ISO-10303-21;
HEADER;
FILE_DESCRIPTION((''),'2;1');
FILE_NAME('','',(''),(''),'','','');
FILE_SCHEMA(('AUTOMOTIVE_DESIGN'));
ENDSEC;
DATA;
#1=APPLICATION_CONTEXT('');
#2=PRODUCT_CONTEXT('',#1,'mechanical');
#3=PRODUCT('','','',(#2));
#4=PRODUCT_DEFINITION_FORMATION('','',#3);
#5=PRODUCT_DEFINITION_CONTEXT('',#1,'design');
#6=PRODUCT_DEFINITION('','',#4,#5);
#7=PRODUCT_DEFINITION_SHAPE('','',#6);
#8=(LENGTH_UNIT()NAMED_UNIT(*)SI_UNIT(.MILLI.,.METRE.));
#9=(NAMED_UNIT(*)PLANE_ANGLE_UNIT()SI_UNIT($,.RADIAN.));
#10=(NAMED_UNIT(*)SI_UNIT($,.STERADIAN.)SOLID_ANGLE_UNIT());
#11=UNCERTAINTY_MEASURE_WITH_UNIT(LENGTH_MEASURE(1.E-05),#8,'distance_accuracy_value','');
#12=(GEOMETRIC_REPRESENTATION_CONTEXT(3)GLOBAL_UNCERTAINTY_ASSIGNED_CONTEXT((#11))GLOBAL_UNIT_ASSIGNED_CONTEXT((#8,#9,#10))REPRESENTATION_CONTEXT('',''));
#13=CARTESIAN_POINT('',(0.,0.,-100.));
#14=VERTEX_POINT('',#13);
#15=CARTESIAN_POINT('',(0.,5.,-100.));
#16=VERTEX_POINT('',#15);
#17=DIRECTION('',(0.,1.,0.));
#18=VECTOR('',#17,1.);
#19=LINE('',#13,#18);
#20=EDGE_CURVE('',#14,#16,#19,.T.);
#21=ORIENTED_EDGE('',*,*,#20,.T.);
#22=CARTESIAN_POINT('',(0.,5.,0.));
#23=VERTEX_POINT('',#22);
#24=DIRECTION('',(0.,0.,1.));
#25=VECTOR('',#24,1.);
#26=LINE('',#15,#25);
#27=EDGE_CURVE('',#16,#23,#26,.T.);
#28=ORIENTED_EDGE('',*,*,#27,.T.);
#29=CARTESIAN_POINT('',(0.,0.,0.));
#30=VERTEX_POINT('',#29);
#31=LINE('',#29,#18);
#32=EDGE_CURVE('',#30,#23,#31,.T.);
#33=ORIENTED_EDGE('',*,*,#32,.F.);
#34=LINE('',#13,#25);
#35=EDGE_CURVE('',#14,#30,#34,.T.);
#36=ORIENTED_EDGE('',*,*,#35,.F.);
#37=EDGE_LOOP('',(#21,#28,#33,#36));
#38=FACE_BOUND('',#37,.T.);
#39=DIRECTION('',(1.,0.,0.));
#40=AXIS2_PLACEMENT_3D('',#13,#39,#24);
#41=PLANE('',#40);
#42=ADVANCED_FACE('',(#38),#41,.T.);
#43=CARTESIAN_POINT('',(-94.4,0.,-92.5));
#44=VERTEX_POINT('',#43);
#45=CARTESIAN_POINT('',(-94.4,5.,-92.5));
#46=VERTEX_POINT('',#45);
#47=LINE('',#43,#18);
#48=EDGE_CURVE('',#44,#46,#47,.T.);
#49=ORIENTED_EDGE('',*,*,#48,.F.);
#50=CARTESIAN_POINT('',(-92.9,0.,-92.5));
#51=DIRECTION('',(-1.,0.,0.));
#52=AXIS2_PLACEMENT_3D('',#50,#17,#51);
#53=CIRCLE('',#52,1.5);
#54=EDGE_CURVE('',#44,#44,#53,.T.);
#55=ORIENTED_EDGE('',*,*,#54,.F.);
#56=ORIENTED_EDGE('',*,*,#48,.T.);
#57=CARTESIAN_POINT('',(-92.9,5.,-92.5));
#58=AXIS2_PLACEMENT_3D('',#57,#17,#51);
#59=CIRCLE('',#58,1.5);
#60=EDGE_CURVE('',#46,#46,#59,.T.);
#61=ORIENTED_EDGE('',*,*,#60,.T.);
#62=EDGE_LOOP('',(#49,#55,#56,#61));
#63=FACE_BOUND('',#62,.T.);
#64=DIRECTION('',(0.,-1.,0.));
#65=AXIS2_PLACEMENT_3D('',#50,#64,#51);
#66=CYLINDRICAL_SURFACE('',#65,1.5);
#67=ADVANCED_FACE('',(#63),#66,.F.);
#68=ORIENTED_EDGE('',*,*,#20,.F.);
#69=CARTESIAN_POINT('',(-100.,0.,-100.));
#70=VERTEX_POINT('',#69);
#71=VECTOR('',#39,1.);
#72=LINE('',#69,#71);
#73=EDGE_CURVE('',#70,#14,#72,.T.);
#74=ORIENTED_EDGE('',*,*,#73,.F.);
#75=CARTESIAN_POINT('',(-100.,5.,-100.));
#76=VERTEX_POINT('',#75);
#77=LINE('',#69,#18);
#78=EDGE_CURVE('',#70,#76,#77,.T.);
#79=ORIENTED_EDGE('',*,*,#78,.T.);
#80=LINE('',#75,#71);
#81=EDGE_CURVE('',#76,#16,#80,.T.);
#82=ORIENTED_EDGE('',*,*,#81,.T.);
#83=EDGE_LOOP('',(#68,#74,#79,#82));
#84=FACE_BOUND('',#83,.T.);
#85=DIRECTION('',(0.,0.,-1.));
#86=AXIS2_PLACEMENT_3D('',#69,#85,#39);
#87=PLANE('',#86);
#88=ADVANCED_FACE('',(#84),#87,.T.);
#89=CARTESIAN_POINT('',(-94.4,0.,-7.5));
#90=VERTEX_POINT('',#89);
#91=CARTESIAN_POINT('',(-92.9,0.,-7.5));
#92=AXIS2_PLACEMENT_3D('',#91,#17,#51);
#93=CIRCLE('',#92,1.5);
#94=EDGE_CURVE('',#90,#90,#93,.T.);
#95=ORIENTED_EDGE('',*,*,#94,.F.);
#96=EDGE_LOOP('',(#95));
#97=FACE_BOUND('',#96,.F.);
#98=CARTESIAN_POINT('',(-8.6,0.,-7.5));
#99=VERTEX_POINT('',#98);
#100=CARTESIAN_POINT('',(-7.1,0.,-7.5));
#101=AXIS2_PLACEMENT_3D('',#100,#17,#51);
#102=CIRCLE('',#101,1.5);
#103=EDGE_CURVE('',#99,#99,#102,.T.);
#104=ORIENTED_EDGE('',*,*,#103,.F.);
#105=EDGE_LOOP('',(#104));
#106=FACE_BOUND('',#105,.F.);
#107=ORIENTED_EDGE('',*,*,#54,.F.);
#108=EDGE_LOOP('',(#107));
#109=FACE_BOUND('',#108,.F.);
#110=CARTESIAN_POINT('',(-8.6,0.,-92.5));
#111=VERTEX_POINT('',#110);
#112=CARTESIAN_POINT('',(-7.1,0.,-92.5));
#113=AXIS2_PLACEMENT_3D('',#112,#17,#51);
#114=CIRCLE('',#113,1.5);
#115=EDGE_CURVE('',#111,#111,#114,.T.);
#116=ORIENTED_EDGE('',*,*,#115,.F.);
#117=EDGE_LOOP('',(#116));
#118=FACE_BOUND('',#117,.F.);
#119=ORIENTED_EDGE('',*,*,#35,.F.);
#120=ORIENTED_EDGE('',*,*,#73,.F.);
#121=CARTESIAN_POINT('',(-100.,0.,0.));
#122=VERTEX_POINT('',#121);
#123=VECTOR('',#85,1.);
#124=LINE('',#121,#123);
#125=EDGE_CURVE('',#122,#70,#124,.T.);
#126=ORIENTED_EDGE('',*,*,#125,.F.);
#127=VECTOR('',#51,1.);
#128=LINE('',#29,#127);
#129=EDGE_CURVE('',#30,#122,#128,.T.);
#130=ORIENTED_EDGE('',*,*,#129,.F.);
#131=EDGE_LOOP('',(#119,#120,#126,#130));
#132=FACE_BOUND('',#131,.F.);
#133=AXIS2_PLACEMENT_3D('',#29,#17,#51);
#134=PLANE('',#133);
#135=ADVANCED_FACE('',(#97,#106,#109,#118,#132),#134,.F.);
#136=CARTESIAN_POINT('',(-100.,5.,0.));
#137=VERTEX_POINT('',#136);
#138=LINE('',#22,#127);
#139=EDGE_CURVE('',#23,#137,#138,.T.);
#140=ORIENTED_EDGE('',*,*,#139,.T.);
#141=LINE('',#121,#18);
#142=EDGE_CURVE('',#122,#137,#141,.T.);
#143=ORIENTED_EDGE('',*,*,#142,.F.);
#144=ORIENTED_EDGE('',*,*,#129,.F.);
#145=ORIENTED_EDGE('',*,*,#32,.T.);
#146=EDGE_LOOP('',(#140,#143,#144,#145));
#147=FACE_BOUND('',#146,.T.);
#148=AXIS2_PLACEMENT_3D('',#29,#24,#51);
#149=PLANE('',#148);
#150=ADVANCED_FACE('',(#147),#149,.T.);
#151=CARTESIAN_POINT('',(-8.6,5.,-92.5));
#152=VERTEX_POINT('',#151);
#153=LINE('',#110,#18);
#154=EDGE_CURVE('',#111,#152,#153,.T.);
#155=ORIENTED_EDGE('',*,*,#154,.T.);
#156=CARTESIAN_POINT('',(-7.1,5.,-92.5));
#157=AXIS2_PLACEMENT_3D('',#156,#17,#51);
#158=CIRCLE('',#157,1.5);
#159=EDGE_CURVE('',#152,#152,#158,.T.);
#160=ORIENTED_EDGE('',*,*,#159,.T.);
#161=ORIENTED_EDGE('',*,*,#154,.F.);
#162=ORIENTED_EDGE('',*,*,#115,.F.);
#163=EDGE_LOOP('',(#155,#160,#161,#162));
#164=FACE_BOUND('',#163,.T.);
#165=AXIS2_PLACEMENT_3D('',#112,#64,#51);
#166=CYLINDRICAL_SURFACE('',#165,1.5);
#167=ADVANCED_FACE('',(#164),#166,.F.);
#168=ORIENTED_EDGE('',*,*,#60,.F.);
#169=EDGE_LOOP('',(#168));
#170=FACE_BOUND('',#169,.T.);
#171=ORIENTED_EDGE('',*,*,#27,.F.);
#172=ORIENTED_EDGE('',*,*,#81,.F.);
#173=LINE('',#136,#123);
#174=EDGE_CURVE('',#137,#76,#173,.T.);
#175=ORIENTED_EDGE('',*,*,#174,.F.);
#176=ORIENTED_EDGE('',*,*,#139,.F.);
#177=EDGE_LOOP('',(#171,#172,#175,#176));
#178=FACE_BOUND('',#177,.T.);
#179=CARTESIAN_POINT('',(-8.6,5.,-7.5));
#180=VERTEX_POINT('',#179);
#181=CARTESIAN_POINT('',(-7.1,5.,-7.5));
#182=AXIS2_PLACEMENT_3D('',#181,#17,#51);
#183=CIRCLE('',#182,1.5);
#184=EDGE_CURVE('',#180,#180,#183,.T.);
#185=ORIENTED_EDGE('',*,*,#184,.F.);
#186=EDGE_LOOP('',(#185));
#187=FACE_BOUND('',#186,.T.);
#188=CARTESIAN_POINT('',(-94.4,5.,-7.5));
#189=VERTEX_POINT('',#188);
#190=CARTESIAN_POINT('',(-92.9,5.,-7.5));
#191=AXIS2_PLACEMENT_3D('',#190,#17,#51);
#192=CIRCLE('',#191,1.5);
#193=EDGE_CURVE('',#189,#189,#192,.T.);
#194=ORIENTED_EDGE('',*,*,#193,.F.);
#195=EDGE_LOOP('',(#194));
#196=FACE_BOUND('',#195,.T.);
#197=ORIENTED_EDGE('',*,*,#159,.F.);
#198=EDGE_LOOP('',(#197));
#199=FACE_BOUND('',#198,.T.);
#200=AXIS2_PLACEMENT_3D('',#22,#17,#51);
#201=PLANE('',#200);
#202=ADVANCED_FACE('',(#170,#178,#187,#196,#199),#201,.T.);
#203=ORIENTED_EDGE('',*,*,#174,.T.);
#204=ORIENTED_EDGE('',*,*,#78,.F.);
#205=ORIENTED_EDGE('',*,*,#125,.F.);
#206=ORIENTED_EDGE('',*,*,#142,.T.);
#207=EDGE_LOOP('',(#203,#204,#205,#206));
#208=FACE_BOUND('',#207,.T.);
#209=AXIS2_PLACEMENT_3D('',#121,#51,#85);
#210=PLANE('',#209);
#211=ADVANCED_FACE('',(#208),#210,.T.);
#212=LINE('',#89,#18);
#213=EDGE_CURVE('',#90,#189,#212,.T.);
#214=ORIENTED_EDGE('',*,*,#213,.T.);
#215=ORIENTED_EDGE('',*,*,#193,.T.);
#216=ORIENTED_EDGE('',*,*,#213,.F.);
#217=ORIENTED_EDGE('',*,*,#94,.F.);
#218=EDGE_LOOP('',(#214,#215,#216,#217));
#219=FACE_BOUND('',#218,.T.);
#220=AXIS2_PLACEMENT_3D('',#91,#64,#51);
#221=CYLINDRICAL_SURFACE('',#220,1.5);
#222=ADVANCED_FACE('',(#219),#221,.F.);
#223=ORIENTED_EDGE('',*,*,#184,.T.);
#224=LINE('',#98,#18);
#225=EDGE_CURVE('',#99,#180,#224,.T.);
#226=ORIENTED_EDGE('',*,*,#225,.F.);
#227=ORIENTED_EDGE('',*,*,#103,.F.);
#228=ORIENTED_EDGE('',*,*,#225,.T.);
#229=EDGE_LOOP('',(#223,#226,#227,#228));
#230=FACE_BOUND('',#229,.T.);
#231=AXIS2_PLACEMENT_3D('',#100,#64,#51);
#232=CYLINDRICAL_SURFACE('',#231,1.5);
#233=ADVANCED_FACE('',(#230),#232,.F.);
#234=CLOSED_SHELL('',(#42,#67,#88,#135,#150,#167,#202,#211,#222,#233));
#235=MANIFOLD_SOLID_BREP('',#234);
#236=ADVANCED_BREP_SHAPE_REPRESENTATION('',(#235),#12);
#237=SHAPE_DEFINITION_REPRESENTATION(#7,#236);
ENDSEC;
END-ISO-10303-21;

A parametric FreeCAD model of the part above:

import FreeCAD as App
import Part
import Sketcher

V = App.Vector
Q = App.Units.Quantity


def add_polygon(sketch, points):
    """Adds a closed chain of lines whose ends are joined by coincident constraints."""
    first, n = sketch.GeometryCount, len(points)
    for a, b in zip(points, points[1:] + points[:1]):
        sketch.addGeometry(Part.LineSegment(App.Vector(*a, 0), App.Vector(*b, 0)), False)
    for i in range(n):
        sketch.addConstraint(Sketcher.Constraint("Coincident", first + i, 2, first + (i + 1) % n, 1))

doc = App.newDocument("Part")
params = doc.addObject("Spreadsheet::Sheet", "Params")
for row, (alias, value) in enumerate([
    ("sketch1_diameter", "3 mm"),
    ("sketch1_width", "100 mm"),
    ("pad1_length", "5 mm"),
], start=1):
    params.set(f"A{row}", alias)
    params.set(f"B{row}", "=" + value)
    params.setAlias(f"B{row}", alias)

body = doc.addObject("PartDesign::Body", "Body")

sketch1 = doc.addObject("Sketcher::SketchObject", "Sketch")
body.addObject(sketch1)
sketch1.AttachmentSupport = (doc.XZ_Plane, [""])
sketch1.MapMode = "FlatFace"
add_polygon(sketch1, [(-100, 0), (0, 0), (0, -100), (-100, -100)])
sketch1.addGeometry(Part.Circle(V(-7.1, -92.5, 0), V(0, 0, 1), 1.5), False)
sketch1.addGeometry(Part.Circle(V(-92.9, -92.5, 0), V(0, 0, 1), 1.5), False)
sketch1.addGeometry(Part.Circle(V(-7.1, -7.5, 0), V(0, 0, 1), 1.5), False)
sketch1.addGeometry(Part.Circle(V(-92.9, -7.5, 0), V(0, 0, 1), 1.5), False)
sketch1.addConstraint(Sketcher.Constraint("Horizontal", 0))
sketch1.addConstraint(Sketcher.Constraint("Vertical", 1))
sketch1.addConstraint(Sketcher.Constraint("Horizontal", 2))
sketch1.addConstraint(Sketcher.Constraint("Vertical", 3))
sketch1.addConstraint(Sketcher.Constraint("Coincident", 0, 2, -1, 1))
sketch1.addConstraint(Sketcher.Constraint("Equal", 4, 5))
sketch1.addConstraint(Sketcher.Constraint("Equal", 5, 6))
sketch1.addConstraint(Sketcher.Constraint("Equal", 6, 7))
sketch1.addConstraint(Sketcher.Constraint("Horizontal", 4, 3, 5, 3))
sketch1.addConstraint(Sketcher.Constraint("Horizontal", 6, 3, 7, 3))
sketch1.addConstraint(Sketcher.Constraint("Vertical", 4, 3, 6, 3))
sketch1.addConstraint(Sketcher.Constraint("Vertical", 5, 3, 7, 3))
sketch1.addConstraint(Sketcher.Constraint("Equal", 2, 1))
sketch1.addConstraint(Sketcher.Constraint("Diameter", 4, Q("3 mm")))
sketch1.addConstraint(Sketcher.Constraint("DistanceX", 0, 1, 0, 2, Q("100 mm")))
sketch1.addConstraint(Sketcher.Constraint("DistanceY", 4, 3, 6, 3, Q("85 mm")))
sketch1.addConstraint(Sketcher.Constraint("DistanceX", 5, 3, 4, 3, Q("85.8 mm")))
sketch1.addConstraint(Sketcher.Constraint("DistanceX", 4, 3, -1, 1, Q("7.1 mm")))
sketch1.addConstraint(Sketcher.Constraint("DistanceY", 4, 3, -1, 1, Q("92.5 mm")))
sketch1.setExpression("Constraints[17]", "Params.sketch1_diameter")
sketch1.setExpression("Constraints[18]", "Params.sketch1_width")
pad1 = doc.addObject("PartDesign::Pad", "Pad")
body.addObject(pad1)
pad1.Profile = sketch1
pad1.setExpression("Length", "Params.pad1_length")
pad1.Reversed = True

doc.recompute()
